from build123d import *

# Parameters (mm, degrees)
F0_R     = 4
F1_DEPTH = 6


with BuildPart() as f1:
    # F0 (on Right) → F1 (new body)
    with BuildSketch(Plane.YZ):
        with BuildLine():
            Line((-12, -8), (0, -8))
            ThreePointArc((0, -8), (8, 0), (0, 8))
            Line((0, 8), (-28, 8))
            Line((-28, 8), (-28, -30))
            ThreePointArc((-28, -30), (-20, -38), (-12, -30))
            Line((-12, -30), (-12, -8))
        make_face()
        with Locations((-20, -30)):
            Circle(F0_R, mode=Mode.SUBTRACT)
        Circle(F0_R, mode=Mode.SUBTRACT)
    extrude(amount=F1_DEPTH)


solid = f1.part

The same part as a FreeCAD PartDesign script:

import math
import FreeCAD as App
import Part
import Sketcher
from FreeCAD import Vector
Q = App.Units.Quantity

doc = App.newDocument("Part")
params = doc.addObject("Spreadsheet::Sheet", "Params")
for row, (alias, value) in enumerate([
    ("sketch1_diameter", "8 mm"),
    ("sketch1_radius", "8 mm"),
    ("sketch1_width", "12 mm"),
    ("sketch1_height", "38 mm"),
    ("pad1_length", "6 mm"),
], start=1):
    params.set(f"A{row}", alias)
    params.set(f"B{row}", "=" + value)
    params.setAlias(f"B{row}", alias)

body = doc.addObject("PartDesign::Body", "Body")

# Sketch on YZ plane
sketch1 = doc.addObject("Sketcher::SketchObject", "Sketch")
body.addObject(sketch1)
sketch1.AttachmentSupport = (doc.YZ_Plane, [""])
sketch1.MapMode = "FlatFace"
sketch1.addGeometry([
    Part.LineSegment(Vector(-12, -8, 0), Vector(0, -8, 0)),  # 0
    Part.ArcOfCircle(Part.Circle(Vector(0, 0, 0), Vector(0, 0, 1), 8), math.radians(-90), math.radians(90)),  # 1
    Part.LineSegment(Vector(0, 8, 0), Vector(-28, 8, 0)),  # 2
    Part.LineSegment(Vector(-28, 8, 0), Vector(-28, -30, 0)),  # 3
    Part.ArcOfCircle(Part.Circle(Vector(-20, -30, 0), Vector(0, 0, 1), 8), math.radians(180), math.radians(360)),  # 4
    Part.LineSegment(Vector(-12, -30, 0), Vector(-12, -8, 0)),  # 5
    Part.Circle(Vector(-20, -30, 0), Vector(0, 0, 1), 4),  # 6
    Part.Circle(Vector(0, 0, 0), Vector(0, 0, 1), 4),  # 7
], False)
sketch1.addConstraint([
    Sketcher.Constraint("Tangent", 0, 2, 1, 1),
    Sketcher.Constraint("Tangent", 1, 2, 2, 1),
    Sketcher.Constraint("Coincident", 2, 2, 3, 1),
    Sketcher.Constraint("Tangent", 3, 2, 4, 1),
    Sketcher.Constraint("Tangent", 4, 2, 5, 1),
    Sketcher.Constraint("Coincident", 5, 2, 0, 1),
    Sketcher.Constraint("Horizontal", 0),
    Sketcher.Constraint("Horizontal", 2),
    Sketcher.Constraint("Vertical", 3),
    Sketcher.Constraint("Vertical", 5),
    Sketcher.Constraint("Coincident", 1, 3, -1, 1),
    Sketcher.Constraint("Coincident", 7, 3, -1, 1),
    Sketcher.Constraint("Coincident", 6, 3, 4, 3),
    Sketcher.Constraint("Equal", 1, 4),
    Sketcher.Constraint("Equal", 6, 7),
    Sketcher.Constraint("Diameter", 6, Q("8 mm")),
    Sketcher.Constraint("Radius", 1, Q("8 mm")),
    Sketcher.Constraint("DistanceX", 0, 1, 0, 2, Q("12 mm")),
    Sketcher.Constraint("DistanceY", 3, 2, 3, 1, Q("38 mm")),
])
sketch1.setExpression("Constraints[15]", "Params.sketch1_diameter")
sketch1.setExpression("Constraints[16]", "Params.sketch1_radius")
sketch1.setExpression("Constraints[17]", "Params.sketch1_width")
sketch1.setExpression("Constraints[18]", "Params.sketch1_height")
pad1 = doc.addObject("PartDesign::Pad", "Pad")
body.addObject(pad1)
pad1.Profile = sketch1
pad1.setExpression("Length", "Params.pad1_length")

doc.recompute()
